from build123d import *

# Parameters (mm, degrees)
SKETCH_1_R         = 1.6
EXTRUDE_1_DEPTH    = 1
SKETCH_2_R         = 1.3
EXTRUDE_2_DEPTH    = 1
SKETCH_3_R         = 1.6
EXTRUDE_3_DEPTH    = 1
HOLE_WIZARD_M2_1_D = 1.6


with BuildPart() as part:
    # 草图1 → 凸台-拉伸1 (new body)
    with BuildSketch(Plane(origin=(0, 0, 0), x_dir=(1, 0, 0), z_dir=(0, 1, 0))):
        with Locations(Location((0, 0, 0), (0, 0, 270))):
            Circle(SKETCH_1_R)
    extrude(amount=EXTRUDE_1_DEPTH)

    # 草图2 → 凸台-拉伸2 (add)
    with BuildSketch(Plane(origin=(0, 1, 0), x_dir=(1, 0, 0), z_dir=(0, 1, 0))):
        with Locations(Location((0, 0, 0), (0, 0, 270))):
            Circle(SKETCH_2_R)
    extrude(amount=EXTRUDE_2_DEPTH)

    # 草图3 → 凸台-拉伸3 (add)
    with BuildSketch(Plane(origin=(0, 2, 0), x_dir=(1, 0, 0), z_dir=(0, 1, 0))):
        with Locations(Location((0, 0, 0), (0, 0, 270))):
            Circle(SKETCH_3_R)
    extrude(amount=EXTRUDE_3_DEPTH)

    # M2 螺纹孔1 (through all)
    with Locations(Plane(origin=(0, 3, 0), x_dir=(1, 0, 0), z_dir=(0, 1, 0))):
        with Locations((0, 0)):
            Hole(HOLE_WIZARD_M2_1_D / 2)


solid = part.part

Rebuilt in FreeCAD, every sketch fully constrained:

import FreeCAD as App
import Part
import Sketcher
Q = App.Units.Quantity

doc = App.newDocument("Part")
body = doc.addObject("PartDesign::Body", "Body")

# Sketch on XZ plane
sketch1 = doc.addObject("Sketcher::SketchObject", "Sketch")
body.addObject(sketch1)
sketch1.AttachmentSupport = (doc.XZ_Plane, [""])
sketch1.MapMode = "FlatFace"
sketch1.addGeometry(Part.Circle(App.Vector(0, 0, 0), App.Vector(0, 0, 1), 1.6), False)
sketch1.addConstraint(Sketcher.Constraint("Coincident", 0, 3, -1, 1))
sketch1.addConstraint(Sketcher.Constraint("Diameter", 0, Q("3.2 mm")))
pad1 = doc.addObject("PartDesign::Pad", "Pad")
body.addObject(pad1)
pad1.Profile = sketch1
pad1.Length = 1
pad1.Reversed = True

# Sketch on XZ plane
sketch2 = doc.addObject("Sketcher::SketchObject", "Sketch001")
body.addObject(sketch2)
sketch2.AttachmentSupport = (doc.XZ_Plane, [""])
sketch2.MapMode = "FlatFace"
sketch2.AttachmentOffset = App.Placement(App.Vector(0, 0, -1), App.Rotation())
sketch2.addGeometry(Part.Circle(App.Vector(0, 0, 0), App.Vector(0, 0, 1), 1.3), False)
sketch2.addConstraint(Sketcher.Constraint("Coincident", 0, 3, -1, 1))
sketch2.addConstraint(Sketcher.Constraint("Diameter", 0, Q("2.6 mm")))
pad2 = doc.addObject("PartDesign::Pad", "Pad001")
body.addObject(pad2)
pad2.Profile = sketch2
pad2.Length = 1
pad2.Reversed = True

# Sketch on XZ plane
sketch3 = doc.addObject("Sketcher::SketchObject", "Sketch002")
body.addObject(sketch3)
sketch3.AttachmentSupport = (doc.XZ_Plane, [""])
sketch3.MapMode = "FlatFace"
sketch3.AttachmentOffset = App.Placement(App.Vector(0, 0, -2), App.Rotation())
sketch3.addGeometry(Part.Circle(App.Vector(0, 0, 0), App.Vector(0, 0, 1), 1.6), False)
sketch3.addConstraint(Sketcher.Constraint("Coincident", 0, 3, -1, 1))
sketch3.addConstraint(Sketcher.Constraint("Diameter", 0, Q("3.2 mm")))
pad3 = doc.addObject("PartDesign::Pad", "Pad002")
body.addObject(pad3)
pad3.Profile = sketch3
pad3.Length = 1
pad3.Reversed = True

# Sketch on XZ plane
sketch4 = doc.addObject("Sketcher::SketchObject", "Sketch003")
body.addObject(sketch4)
sketch4.AttachmentSupport = (doc.XZ_Plane, [""])
sketch4.MapMode = "FlatFace"
sketch4.AttachmentOffset = App.Placement(App.Vector(0, 0, -3), App.Rotation())
sketch4.addGeometry(Part.Circle(App.Vector(0, 0, 0), App.Vector(0, 0, 1), 0.8), False)
sketch4.addConstraint(Sketcher.Constraint("Coincident", 0, 3, -1, 1))
sketch4.addConstraint(Sketcher.Constraint("Diameter", 0, Q("1.6 mm")))
doc.recompute()
hole = doc.addObject("PartDesign::Hole", "Hole")
body.addObject(hole)
hole.Profile = sketch4
hole.ThreadType = "None"
hole.Diameter = 1.6
hole.DepthType = "ThroughAll"
hole.Reversed = True

doc.recompute()
